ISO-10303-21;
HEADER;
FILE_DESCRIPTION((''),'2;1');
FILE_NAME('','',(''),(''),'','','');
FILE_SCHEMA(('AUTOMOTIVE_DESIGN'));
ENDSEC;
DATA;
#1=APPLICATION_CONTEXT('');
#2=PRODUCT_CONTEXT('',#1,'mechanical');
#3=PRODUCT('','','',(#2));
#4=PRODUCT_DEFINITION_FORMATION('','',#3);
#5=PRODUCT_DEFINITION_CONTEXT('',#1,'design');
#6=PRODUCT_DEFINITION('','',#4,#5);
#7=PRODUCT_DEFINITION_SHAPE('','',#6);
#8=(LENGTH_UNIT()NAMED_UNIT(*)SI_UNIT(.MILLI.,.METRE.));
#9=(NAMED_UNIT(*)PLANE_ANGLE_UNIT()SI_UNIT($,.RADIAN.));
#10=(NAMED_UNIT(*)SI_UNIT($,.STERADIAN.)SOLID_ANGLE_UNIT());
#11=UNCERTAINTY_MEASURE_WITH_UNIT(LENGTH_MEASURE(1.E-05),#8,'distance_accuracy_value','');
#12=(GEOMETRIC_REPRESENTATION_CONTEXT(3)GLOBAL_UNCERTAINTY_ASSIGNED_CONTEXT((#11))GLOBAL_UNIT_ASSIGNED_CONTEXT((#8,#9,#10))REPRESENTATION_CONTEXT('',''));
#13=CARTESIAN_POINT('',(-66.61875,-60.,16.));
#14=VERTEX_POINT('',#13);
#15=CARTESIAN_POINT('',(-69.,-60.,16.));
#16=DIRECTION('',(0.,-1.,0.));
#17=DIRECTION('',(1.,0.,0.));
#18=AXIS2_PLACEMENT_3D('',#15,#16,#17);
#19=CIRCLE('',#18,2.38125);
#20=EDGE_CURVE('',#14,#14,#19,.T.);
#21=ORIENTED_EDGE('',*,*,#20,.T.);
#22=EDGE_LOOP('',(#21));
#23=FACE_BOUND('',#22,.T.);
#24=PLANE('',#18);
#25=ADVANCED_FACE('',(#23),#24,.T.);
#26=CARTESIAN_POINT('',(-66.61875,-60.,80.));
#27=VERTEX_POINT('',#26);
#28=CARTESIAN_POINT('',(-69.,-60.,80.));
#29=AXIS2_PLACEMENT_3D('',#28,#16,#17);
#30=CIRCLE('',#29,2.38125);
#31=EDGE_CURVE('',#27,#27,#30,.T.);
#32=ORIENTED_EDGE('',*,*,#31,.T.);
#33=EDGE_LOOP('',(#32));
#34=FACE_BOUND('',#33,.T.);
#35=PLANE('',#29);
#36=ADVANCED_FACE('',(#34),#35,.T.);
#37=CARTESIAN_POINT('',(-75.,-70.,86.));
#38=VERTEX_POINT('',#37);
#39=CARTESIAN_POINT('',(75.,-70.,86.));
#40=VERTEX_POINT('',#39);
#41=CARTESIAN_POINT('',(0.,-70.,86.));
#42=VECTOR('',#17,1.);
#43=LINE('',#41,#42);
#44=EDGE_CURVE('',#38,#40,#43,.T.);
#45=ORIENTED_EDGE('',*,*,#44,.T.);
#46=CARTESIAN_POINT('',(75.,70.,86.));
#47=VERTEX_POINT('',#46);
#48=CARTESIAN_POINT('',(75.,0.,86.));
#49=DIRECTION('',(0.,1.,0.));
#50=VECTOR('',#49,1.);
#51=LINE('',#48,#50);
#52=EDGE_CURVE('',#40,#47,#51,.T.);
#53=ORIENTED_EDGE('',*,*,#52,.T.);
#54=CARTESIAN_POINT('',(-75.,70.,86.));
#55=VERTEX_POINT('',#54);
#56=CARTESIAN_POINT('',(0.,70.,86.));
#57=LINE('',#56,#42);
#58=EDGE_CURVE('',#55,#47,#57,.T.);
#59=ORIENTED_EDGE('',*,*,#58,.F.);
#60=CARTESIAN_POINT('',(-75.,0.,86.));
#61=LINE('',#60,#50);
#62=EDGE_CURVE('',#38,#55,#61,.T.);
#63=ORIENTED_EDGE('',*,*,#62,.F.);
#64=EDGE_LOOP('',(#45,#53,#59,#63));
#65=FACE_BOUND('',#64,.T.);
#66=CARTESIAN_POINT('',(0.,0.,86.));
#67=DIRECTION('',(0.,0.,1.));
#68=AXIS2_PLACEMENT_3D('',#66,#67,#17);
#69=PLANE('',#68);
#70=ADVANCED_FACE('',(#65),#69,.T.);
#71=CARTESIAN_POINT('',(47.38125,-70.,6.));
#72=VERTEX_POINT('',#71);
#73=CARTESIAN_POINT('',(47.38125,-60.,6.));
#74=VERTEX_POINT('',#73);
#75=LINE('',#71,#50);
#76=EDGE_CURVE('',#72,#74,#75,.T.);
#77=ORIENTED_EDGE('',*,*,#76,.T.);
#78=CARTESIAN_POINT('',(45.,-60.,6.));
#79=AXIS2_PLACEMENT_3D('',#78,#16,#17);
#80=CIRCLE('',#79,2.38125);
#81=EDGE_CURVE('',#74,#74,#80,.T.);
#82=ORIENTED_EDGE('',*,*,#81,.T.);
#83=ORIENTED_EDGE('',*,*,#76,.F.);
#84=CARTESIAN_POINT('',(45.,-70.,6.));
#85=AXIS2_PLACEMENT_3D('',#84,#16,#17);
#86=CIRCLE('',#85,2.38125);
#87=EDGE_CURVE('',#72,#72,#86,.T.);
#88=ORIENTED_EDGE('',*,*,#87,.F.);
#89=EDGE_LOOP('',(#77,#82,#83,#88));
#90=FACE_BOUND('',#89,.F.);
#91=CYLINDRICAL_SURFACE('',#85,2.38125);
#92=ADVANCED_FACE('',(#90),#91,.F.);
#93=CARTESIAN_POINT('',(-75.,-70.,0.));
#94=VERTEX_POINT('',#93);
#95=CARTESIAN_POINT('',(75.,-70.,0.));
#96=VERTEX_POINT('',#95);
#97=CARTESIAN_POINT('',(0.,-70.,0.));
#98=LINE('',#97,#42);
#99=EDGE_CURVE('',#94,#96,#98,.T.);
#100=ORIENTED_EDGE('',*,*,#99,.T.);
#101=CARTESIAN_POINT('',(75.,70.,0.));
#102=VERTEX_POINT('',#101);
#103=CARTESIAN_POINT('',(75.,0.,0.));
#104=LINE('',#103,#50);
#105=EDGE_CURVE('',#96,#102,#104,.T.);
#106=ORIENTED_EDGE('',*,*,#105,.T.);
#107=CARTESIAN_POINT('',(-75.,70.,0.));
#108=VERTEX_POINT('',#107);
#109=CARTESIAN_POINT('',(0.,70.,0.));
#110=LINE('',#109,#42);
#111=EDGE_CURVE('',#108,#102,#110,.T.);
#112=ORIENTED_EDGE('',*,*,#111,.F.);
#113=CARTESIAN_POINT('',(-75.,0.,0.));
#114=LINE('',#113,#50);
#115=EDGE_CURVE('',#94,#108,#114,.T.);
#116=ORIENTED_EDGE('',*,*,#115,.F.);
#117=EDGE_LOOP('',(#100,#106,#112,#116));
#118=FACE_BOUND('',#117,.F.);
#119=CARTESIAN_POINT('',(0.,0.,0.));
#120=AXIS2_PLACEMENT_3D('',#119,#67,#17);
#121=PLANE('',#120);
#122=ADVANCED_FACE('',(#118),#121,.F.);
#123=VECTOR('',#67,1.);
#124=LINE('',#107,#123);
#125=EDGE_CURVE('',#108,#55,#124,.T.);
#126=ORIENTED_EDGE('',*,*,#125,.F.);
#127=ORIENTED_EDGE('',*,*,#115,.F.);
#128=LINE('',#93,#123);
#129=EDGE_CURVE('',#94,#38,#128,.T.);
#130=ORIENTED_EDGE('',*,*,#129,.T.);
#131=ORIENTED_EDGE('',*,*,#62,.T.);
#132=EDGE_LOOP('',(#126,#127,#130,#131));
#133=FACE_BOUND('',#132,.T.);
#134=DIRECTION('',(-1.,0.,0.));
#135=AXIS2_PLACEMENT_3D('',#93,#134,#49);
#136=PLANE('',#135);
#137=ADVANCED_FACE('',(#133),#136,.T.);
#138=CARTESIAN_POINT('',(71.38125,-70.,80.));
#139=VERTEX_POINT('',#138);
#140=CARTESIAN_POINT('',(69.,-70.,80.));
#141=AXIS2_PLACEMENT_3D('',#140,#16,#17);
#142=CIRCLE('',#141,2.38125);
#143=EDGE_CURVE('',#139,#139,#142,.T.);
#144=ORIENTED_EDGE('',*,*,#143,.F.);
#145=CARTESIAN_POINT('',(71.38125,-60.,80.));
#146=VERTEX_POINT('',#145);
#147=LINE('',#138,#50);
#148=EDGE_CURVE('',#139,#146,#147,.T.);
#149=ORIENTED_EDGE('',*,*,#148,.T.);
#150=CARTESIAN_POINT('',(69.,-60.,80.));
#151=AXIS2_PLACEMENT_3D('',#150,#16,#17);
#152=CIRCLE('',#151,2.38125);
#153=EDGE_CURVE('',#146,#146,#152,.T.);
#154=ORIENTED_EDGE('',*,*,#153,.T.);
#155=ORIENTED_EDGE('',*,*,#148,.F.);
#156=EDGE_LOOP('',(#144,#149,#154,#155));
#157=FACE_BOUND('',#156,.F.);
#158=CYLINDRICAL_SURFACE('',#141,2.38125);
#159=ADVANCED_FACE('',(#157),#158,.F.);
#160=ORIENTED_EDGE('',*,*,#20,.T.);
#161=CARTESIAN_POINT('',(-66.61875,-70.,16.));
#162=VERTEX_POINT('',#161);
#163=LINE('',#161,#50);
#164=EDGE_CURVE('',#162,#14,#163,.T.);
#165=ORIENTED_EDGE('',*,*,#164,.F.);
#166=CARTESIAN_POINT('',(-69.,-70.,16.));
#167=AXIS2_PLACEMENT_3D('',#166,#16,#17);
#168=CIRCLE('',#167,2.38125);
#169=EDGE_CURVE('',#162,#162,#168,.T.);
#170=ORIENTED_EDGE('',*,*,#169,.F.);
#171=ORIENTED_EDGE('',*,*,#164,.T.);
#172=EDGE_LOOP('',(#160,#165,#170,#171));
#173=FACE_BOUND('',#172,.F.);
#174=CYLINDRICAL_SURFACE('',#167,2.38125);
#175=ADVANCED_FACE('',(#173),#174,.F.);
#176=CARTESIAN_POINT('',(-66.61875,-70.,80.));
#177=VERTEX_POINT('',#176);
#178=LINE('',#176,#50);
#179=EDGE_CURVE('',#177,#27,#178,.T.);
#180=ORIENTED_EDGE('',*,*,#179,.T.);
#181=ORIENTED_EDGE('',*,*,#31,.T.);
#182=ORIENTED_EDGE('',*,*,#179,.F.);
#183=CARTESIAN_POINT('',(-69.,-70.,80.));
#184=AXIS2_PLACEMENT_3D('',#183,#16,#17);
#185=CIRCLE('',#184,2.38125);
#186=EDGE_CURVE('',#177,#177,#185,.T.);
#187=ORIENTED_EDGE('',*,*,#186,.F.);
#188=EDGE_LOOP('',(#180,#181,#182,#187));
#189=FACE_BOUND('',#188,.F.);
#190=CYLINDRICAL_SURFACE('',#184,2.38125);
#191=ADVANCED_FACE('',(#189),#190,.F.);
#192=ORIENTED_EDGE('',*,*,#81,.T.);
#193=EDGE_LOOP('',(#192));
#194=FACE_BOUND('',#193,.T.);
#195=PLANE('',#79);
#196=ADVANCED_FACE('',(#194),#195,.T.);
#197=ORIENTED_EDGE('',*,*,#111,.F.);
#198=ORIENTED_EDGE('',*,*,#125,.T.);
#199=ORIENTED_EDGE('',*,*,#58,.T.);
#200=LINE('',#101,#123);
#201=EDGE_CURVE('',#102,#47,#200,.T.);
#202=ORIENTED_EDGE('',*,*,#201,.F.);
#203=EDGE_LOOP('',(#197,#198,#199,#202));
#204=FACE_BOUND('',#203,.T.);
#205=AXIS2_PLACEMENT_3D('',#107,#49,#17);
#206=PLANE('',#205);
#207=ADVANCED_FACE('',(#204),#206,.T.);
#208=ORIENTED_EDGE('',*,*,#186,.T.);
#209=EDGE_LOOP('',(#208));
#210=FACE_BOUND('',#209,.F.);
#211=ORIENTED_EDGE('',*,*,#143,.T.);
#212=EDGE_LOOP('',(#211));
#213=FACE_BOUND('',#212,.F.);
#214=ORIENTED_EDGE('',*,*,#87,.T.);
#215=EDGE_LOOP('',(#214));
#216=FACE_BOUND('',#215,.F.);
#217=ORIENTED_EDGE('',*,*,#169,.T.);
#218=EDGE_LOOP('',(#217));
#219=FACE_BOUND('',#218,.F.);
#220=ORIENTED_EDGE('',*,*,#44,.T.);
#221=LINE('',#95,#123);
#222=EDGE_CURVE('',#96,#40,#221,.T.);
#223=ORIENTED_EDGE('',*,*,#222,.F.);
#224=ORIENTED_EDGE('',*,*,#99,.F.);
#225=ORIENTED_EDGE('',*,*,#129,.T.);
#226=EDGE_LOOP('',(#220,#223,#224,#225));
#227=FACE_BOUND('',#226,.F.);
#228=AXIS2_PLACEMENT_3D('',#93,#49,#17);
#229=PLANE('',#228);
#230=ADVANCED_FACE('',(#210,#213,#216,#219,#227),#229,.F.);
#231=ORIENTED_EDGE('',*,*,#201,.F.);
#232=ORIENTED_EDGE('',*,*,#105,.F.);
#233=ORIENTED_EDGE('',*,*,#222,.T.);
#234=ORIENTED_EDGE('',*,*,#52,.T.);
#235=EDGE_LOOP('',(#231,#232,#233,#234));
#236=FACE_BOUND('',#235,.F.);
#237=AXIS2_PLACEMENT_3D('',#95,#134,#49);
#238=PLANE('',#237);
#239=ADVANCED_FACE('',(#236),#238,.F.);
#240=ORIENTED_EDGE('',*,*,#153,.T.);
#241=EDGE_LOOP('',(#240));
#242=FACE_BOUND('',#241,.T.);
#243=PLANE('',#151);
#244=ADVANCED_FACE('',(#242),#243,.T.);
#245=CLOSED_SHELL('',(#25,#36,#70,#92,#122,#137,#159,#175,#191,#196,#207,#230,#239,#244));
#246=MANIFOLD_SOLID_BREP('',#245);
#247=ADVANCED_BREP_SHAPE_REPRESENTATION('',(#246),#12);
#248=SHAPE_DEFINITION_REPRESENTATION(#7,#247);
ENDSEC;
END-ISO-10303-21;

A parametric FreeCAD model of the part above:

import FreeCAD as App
import Part
import Sketcher
from FreeCAD import Vector


def add_polygon(sketch, points):
    """Adds a closed chain of lines whose ends are joined by coincident constraints."""
    first, n = sketch.GeometryCount, len(points)
    for a, b in zip(points, points[1:] + points[:1]):
        sketch.addGeometry(Part.LineSegment(App.Vector(*a, 0), App.Vector(*b, 0)), False)
    for i in range(n):
        sketch.addConstraint(Sketcher.Constraint("Coincident", first + i, 2, first + (i + 1) % n, 1))

doc = App.newDocument("Part")
body = doc.addObject("PartDesign::Body", "Body")

# Sketch on XY plane
sketch1 = body.newObject("Sketcher::SketchObject", "Sketch")
sketch1.AttachmentSupport = (doc.getObject("XY_Plane"), [""])
sketch1.MapMode = "FlatFace"
add_polygon(sketch1, [(-75, 70), (-75, -70), (75, -70), (75, 70)])  # lines 0-3
sketch1.addConstraint(Sketcher.Constraint("Vertical", 0))
sketch1.addConstraint(Sketcher.Constraint("Horizontal", 1))
sketch1.addConstraint(Sketcher.Constraint("Vertical", 2))
sketch1.addConstraint(Sketcher.Constraint("Horizontal", 3))
sketch1.addConstraint(Sketcher.Constraint("Symmetric", 0, 2, 2, 2, -1, 1))
sketch1.addConstraint(Sketcher.Constraint("DistanceX", 1, 1, 1, 2, 150.0))
sketch1.addConstraint(Sketcher.Constraint("DistanceY", 0, 2, 0, 1, 140.0))
pad1 = body.newObject("PartDesign::Pad", "Pad")
pad1.Profile = sketch1
pad1.Length = 86

# Sketch on XZ plane
sketch2 = body.newObject("Sketcher::SketchObject", "Sketch001")
sketch2.AttachmentSupport = (doc.getObject("XZ_Plane"), [""])
sketch2.MapMode = "FlatFace"
sketch2.AttachmentOffset = App.Placement(Vector(0, 0, 70), App.Rotation())
sketch2.addGeometry(Part.Circle(Vector(-69, 80, 0), Vector(0, 0, 1), 2.4), False)
sketch2.addGeometry(Part.Circle(Vector(-69, 16, 0), Vector(0, 0, 1), 2.4), False)
sketch2.addGeometry(Part.Circle(Vector(69, 80, 0), Vector(0, 0, 1), 2.4), False)
sketch2.addGeometry(Part.Circle(Vector(45, 6, 0), Vector(0, 0, 1), 2.4), False)
sketch2.addConstraint(Sketcher.Constraint("Equal", 0, 1))
sketch2.addConstraint(Sketcher.Constraint("Equal", 1, 2))
sketch2.addConstraint(Sketcher.Constraint("Equal", 2, 3))
sketch2.addConstraint(Sketcher.Constraint("Symmetric", 0, 3, 2, 3, -2))
sketch2.addConstraint(Sketcher.Constraint("Vertical", 0, 3, 1, 3))
sketch2.addConstraint(Sketcher.Constraint("DistanceX", 0, 3, -1, 1, 69.0))
sketch2.addConstraint(Sketcher.Constraint("DistanceY", -1, 1, 0, 3, 80.0))
sketch2.addConstraint(Sketcher.Constraint("DistanceY", -1, 1, 1, 3, 16.0))
sketch2.addConstraint(Sketcher.Constraint("DistanceX", -1, 1, 3, 3, 45.0))
sketch2.addConstraint(Sketcher.Constraint("DistanceY", -1, 1, 3, 3, 6.0))
sketch2.addConstraint(Sketcher.Constraint("Diameter", 0, 4.7625))
pocket1 = body.newObject("PartDesign::Pocket", "Pocket")
pocket1.Profile = sketch2
pocket1.Length = 10

doc.recompute()
